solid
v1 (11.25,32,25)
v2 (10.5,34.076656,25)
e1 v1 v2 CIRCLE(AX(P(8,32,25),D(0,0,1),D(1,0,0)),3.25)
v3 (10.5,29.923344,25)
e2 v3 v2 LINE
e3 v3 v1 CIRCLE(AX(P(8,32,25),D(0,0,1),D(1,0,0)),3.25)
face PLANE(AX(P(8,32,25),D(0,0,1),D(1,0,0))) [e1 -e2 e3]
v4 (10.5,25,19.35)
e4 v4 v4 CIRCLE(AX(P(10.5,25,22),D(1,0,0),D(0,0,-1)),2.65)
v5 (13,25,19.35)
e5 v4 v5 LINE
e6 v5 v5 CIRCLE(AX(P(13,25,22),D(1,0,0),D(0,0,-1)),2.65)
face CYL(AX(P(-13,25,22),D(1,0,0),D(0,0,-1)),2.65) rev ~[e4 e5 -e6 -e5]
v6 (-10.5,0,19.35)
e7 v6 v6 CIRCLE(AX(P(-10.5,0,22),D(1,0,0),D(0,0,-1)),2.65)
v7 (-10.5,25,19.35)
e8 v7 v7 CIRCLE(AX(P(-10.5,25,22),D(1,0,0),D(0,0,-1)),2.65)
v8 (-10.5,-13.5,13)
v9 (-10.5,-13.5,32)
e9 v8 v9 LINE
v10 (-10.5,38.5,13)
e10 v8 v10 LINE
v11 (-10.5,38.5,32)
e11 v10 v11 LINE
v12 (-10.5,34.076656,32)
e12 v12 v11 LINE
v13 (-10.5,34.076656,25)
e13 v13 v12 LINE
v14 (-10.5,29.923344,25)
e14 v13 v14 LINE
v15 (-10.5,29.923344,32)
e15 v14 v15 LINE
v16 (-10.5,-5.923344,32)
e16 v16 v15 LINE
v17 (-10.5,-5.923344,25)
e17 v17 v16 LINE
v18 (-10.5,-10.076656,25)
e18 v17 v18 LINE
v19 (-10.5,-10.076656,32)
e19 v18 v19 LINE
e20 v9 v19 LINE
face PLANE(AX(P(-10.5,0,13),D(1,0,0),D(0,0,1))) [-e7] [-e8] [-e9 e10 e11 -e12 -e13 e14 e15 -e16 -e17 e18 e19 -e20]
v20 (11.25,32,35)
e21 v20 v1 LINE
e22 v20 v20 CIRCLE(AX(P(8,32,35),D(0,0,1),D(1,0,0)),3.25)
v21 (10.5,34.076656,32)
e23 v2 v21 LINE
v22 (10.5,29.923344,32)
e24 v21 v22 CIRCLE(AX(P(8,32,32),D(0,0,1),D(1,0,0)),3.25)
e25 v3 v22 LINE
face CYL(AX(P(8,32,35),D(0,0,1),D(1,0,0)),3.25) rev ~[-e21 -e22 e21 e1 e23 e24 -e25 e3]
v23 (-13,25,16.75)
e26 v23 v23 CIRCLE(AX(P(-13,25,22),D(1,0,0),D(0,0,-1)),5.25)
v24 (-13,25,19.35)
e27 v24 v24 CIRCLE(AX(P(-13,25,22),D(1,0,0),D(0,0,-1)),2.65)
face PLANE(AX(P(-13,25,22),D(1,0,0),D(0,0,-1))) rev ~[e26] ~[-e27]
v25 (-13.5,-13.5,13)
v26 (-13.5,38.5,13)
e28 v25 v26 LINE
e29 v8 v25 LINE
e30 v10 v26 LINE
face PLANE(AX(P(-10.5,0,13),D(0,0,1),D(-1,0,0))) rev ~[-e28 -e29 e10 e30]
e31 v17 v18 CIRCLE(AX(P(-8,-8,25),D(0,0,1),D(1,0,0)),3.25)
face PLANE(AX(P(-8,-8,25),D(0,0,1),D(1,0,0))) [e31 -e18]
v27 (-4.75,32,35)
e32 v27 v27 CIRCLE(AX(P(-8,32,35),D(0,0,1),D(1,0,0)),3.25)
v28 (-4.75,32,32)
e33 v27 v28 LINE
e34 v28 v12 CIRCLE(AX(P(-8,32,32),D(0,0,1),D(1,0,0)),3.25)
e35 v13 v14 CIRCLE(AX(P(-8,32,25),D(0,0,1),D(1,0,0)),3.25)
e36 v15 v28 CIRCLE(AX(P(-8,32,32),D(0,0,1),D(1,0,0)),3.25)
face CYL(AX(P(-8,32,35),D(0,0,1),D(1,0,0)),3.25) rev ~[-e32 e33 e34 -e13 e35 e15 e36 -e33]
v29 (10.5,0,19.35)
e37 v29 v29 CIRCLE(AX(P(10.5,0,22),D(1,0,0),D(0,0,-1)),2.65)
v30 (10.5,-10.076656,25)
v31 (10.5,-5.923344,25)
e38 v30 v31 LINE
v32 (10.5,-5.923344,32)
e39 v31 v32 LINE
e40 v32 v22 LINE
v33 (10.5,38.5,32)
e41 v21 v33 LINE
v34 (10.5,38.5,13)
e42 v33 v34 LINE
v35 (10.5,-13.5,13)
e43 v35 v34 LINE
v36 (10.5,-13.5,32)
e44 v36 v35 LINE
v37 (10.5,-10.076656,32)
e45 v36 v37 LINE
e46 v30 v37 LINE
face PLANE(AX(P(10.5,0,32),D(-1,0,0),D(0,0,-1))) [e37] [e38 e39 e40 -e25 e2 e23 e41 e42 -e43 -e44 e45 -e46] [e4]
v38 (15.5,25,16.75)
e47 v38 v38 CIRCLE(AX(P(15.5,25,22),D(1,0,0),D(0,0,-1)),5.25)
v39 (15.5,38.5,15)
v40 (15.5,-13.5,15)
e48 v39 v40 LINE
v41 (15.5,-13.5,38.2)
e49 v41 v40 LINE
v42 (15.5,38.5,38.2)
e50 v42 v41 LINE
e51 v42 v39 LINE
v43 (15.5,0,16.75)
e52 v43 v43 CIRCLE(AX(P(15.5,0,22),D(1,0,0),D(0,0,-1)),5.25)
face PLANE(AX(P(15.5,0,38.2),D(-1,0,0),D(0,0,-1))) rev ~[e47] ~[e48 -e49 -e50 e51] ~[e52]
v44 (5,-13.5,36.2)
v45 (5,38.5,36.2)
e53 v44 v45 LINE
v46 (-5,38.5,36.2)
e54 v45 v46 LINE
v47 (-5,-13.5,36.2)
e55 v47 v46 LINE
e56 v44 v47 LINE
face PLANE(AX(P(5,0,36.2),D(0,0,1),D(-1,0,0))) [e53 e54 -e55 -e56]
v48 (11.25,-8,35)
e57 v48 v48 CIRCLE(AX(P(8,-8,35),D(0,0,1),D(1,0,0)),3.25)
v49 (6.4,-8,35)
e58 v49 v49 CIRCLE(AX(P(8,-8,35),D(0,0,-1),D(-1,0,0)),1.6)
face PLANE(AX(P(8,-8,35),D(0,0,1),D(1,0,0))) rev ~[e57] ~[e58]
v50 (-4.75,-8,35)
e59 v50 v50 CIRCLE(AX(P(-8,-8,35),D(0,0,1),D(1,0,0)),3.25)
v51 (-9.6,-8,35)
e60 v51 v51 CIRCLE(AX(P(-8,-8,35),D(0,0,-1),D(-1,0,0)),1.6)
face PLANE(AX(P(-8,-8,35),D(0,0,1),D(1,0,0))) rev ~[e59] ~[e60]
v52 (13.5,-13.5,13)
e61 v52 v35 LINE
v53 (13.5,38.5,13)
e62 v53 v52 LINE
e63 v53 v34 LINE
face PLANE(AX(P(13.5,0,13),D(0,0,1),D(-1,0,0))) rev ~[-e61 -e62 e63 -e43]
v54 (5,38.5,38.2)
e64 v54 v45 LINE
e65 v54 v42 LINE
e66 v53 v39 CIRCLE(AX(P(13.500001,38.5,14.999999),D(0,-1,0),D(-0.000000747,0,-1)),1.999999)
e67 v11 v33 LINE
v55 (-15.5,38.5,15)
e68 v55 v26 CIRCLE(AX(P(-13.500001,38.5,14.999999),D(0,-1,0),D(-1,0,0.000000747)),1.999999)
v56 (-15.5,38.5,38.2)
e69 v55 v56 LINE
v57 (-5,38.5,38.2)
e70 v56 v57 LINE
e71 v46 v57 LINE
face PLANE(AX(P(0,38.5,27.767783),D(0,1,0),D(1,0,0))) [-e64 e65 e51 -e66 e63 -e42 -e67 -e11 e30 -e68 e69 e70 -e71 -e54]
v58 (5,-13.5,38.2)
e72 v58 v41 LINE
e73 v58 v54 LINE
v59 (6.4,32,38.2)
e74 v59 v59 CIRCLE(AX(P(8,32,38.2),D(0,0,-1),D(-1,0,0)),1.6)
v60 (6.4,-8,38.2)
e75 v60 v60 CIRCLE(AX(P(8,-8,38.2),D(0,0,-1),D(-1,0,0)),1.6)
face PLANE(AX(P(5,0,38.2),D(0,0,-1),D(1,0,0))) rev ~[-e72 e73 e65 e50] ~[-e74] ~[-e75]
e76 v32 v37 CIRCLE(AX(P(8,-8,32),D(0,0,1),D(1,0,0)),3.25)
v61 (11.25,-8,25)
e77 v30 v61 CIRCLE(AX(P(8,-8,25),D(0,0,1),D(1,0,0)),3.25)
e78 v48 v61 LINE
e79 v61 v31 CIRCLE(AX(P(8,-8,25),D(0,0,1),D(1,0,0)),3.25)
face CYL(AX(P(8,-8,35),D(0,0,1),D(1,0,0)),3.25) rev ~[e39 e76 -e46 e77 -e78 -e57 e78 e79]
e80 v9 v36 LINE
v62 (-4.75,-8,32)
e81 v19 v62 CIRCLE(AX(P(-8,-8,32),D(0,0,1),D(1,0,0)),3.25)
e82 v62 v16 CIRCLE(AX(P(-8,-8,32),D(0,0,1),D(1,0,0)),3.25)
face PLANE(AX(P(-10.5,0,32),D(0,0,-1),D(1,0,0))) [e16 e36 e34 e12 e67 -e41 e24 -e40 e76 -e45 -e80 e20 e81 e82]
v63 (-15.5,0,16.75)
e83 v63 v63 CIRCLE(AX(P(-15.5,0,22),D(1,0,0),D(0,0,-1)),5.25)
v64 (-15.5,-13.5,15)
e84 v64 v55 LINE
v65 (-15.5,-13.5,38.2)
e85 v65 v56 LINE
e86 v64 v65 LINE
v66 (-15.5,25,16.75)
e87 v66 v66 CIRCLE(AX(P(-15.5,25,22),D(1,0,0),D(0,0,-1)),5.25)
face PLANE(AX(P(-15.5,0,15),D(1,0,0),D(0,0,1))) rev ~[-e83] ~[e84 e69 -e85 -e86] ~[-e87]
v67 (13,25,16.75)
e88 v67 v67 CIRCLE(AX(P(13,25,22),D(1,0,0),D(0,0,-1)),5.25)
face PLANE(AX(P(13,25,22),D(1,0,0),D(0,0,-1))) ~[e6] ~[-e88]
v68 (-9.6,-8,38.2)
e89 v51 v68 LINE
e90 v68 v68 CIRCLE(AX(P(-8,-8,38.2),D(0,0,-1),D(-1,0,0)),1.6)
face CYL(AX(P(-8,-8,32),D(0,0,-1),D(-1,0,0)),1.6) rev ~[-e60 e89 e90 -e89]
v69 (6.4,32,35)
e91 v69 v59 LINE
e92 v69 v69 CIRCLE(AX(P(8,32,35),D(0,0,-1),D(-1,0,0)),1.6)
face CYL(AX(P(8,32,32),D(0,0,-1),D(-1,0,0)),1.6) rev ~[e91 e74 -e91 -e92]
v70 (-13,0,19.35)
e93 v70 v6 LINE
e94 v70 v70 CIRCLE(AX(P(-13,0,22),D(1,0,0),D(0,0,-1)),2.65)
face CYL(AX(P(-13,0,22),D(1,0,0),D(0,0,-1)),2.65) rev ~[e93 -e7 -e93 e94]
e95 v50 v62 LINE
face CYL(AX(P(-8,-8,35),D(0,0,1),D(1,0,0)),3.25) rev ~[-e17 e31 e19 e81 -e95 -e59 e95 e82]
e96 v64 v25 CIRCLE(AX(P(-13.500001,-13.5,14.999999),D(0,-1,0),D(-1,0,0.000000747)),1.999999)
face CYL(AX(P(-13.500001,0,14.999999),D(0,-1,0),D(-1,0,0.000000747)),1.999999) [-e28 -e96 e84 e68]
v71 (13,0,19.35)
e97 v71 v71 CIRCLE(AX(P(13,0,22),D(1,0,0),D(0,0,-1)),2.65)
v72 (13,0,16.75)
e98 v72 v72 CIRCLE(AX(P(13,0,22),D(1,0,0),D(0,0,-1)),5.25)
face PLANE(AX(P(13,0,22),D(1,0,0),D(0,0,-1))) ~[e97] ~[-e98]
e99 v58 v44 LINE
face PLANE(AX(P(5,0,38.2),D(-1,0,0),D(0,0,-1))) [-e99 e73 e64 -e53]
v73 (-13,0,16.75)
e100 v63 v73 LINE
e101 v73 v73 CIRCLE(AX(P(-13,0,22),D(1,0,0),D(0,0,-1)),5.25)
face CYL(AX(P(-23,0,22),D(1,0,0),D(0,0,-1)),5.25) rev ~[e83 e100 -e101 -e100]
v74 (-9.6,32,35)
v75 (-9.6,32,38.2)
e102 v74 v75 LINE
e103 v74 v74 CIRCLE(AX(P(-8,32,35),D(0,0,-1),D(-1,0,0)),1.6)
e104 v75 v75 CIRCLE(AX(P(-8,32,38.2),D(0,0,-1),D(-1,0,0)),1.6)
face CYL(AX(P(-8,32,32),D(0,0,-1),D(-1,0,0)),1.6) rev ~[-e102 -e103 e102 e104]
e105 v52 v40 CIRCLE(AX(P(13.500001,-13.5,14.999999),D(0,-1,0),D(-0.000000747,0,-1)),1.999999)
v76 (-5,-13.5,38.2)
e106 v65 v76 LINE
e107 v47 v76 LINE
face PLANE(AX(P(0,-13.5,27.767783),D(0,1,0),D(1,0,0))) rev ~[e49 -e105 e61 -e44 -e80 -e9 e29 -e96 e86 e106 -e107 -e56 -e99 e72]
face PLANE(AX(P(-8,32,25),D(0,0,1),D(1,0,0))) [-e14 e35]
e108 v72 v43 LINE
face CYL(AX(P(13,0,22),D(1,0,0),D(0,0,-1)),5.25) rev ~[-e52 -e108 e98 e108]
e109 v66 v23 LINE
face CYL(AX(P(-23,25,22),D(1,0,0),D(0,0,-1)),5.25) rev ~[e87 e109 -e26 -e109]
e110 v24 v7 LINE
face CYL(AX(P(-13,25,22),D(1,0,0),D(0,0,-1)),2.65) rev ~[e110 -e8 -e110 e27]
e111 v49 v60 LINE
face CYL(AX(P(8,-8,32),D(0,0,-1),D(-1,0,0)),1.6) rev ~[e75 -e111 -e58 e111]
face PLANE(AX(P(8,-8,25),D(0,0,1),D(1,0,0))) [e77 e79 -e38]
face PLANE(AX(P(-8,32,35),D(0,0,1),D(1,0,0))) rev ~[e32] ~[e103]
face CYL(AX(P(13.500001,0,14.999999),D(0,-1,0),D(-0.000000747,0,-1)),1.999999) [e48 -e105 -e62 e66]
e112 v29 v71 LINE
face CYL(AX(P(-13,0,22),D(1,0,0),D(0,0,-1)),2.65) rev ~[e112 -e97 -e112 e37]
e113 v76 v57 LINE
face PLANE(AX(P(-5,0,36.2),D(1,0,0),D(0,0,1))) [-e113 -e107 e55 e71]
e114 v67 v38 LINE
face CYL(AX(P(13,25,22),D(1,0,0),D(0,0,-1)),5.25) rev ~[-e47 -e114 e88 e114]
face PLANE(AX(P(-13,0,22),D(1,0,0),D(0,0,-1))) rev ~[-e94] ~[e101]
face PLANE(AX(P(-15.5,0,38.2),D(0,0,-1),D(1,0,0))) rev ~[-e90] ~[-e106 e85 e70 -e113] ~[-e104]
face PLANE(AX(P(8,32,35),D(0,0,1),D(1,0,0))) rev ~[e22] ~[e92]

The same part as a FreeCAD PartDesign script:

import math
import FreeCAD as App
import Part
import Sketcher

doc = App.newDocument("Part")
body = doc.addObject("PartDesign::Body", "Body")

sketch1 = body.newObject("Sketcher::SketchObject", "Sketch")
sketch1.AttachmentSupport = (doc.getObject("XZ_Plane"), [""])
sketch1.MapMode = "FlatFace"
sketch1.addGeometry(Part.LineSegment(App.Vector(-10.5, 19, 0), App.Vector(-13.5, 19, 0)), False)
sketch1.addGeometry(Part.ArcOfCircle(Part.Circle(App.Vector(-13.5, 17, 0), App.Vector(0, 0, 1), 2), math.radians(90), math.radians(180)), False)
sketch1.addGeometry(Part.LineSegment(App.Vector(-15.5, 17, 0), App.Vector(-15.5, -6.2, 0)), False)
sketch1.addGeometry(Part.LineSegment(App.Vector(-15.5, -6.2, 0), App.Vector(-5, -6.2, 0)), False)
sketch1.addGeometry(Part.LineSegment(App.Vector(-5, -6.2, 0), App.Vector(-5, -4.2, 0)), False)
sketch1.addGeometry(Part.LineSegment(App.Vector(-5, -4.2, 0), App.Vector(5, -4.2, 0)), False)
sketch1.addGeometry(Part.LineSegment(App.Vector(5, -4.2, 0), App.Vector(5, -6.2, 0)), False)
sketch1.addGeometry(Part.LineSegment(App.Vector(5, -6.2, 0), App.Vector(15.5, -6.2, 0)), False)
sketch1.addGeometry(Part.LineSegment(App.Vector(15.5, -6.2, 0), App.Vector(15.5, 17, 0)), False)
sketch1.addGeometry(Part.ArcOfCircle(Part.Circle(App.Vector(13.5, 17, 0), App.Vector(0, 0, 1), 2), math.radians(0), math.radians(90)), False)
sketch1.addGeometry(Part.LineSegment(App.Vector(13.5, 19, 0), App.Vector(10.5, 19, 0)), False)
sketch1.addGeometry(Part.LineSegment(App.Vector(10.5, 19, 0), App.Vector(10.5, 0, 0)), False)
sketch1.addGeometry(Part.LineSegment(App.Vector(10.5, 0, 0), App.Vector(-10.5, 0, 0)), False)
sketch1.addGeometry(Part.LineSegment(App.Vector(-10.5, 0, 0), App.Vector(-10.5, 19, 0)), False)
sketch1.addConstraint(Sketcher.Constraint("Tangent", 0, 2, 1, 1))
sketch1.addConstraint(Sketcher.Constraint("Tangent", 1, 2, 2, 1))
sketch1.addConstraint(Sketcher.Constraint("Coincident", 2, 2, 3, 1))
sketch1.addConstraint(Sketcher.Constraint("Coincident", 3, 2, 4, 1))
sketch1.addConstraint(Sketcher.Constraint("Coincident", 4, 2, 5, 1))
sketch1.addConstraint(Sketcher.Constraint("Coincident", 5, 2, 6, 1))
sketch1.addConstraint(Sketcher.Constraint("Coincident", 6, 2, 7, 1))
sketch1.addConstraint(Sketcher.Constraint("Coincident", 7, 2, 8, 1))
sketch1.addConstraint(Sketcher.Constraint("Tangent", 8, 2, 9, 1))
sketch1.addConstraint(Sketcher.Constraint("Tangent", 9, 2, 10, 1))
sketch1.addConstraint(Sketcher.Constraint("Coincident", 10, 2, 11, 1))
sketch1.addConstraint(Sketcher.Constraint("Coincident", 11, 2, 12, 1))
sketch1.addConstraint(Sketcher.Constraint("Coincident", 12, 2, 13, 1))
sketch1.addConstraint(Sketcher.Constraint("Coincident", 13, 2, 0, 1))
sketch1.addConstraint(Sketcher.Constraint("Horizontal", 0))
sketch1.addConstraint(Sketcher.Constraint("Vertical", 2))
sketch1.addConstraint(Sketcher.Constraint("Horizontal", 3))
sketch1.addConstraint(Sketcher.Constraint("Vertical", 4))
sketch1.addConstraint(Sketcher.Constraint("Horizontal", 5))
sketch1.addConstraint(Sketcher.Constraint("Vertical", 6))
sketch1.addConstraint(Sketcher.Constraint("Horizontal", 7))
sketch1.addConstraint(Sketcher.Constraint("Vertical", 8))
sketch1.addConstraint(Sketcher.Constraint("Horizontal", 10))
sketch1.addConstraint(Sketcher.Constraint("Vertical", 11))
sketch1.addConstraint(Sketcher.Constraint("Horizontal", 12))
sketch1.addConstraint(Sketcher.Constraint("Vertical", 13))
sketch1.addConstraint(Sketcher.Constraint("Equal", 1, 9))
sketch1.addConstraint(Sketcher.Constraint("Symmetric", 11, 2, 12, 2, -1, 1))
sketch1.addConstraint(Sketcher.Constraint("Symmetric", 1, 3, 9, 3, -2))
sketch1.addConstraint(Sketcher.Constraint("Symmetric", 3, 2, 6, 2, -2))
sketch1.addConstraint(Sketcher.Constraint("Radius", 1, 1.999999))
sketch1.addConstraint(Sketcher.Constraint("DistanceX", 0, 2, 0, 1, 3.0))
sketch1.addConstraint(Sketcher.Constraint("DistanceX", 5, 1, 5, 2, 10.0))
sketch1.addConstraint(Sketcher.Constraint("DistanceX", 12, 2, 12, 1, 21.0))
sketch1.addConstraint(Sketcher.Constraint("DistanceY", 4, 1, 4, 2, 2.0))
sketch1.addConstraint(Sketcher.Constraint("DistanceY", 11, 2, 11, 1, 19.0))
sketch1.addConstraint(Sketcher.Constraint("DistanceY", 2, 2, 2, 1, 23.2))
pad1 = body.newObject("PartDesign::Pad", "Pad")
pad1.Profile = sketch1
pad1.Type = "TwoLengths"
pad1.Length = 13.5
pad1.Length2 = 38.5

sketch2 = body.newObject("Sketcher::SketchObject", "Sketch001")
sketch2.AttachmentSupport = (doc.getObject("XY_Plane"), [""])
sketch2.MapMode = "FlatFace"
sketch2.addGeometry(Part.Circle(App.Vector(-8, 32, 0), App.Vector(0, 0, 1), 1.6), False)
sketch2.addGeometry(Part.Circle(App.Vector(8, 32, 0), App.Vector(0, 0, 1), 1.6), False)
sketch2.addGeometry(Part.Circle(App.Vector(-8, -8, 0), App.Vector(0, 0, 1), 1.6), False)
sketch2.addGeometry(Part.Circle(App.Vector(8, -8, 0), App.Vector(0, 0, 1), 1.6), False)
sketch2.addConstraint(Sketcher.Constraint("Equal", 0, 1))
sketch2.addConstraint(Sketcher.Constraint("Equal", 1, 2))
sketch2.addConstraint(Sketcher.Constraint("Equal", 2, 3))
sketch2.addConstraint(Sketcher.Constraint("Symmetric", 0, 3, 1, 3, -2))
sketch2.addConstraint(Sketcher.Constraint("Symmetric", 2, 3, 3, 3, -2))
sketch2.addConstraint(Sketcher.Constraint("Vertical", 0, 3, 2, 3))
sketch2.addConstraint(Sketcher.Constraint("Diameter", 0, 3.2))
sketch2.addConstraint(Sketcher.Constraint("DistanceX", 0, 3, -1, 1, 8.0))
sketch2.addConstraint(Sketcher.Constraint("DistanceY", -1, 1, 0, 3, 32.0))
sketch2.addConstraint(Sketcher.Constraint("DistanceY", 2, 3, -1, 1, 8.0))
pocket1 = body.newObject("PartDesign::Pocket", "Pocket")
pocket1.Profile = sketch2
pocket1.Type = "ThroughAll"
pocket1.Midplane = True

sketch3 = body.newObject("Sketcher::SketchObject", "Sketch002")
sketch3.AttachmentSupport = (doc.getObject("XY_Plane"), [""])
sketch3.MapMode = "FlatFace"
sketch3.AttachmentOffset = App.Placement(App.Vector(0, 0, -3), App.Rotation())
sketch3.addGeometry(Part.Circle(App.Vector(8, 32, 0), App.Vector(0, 0, 1), 3.2), False)
sketch3.addGeometry(Part.Circle(App.Vector(-8, 32, 0), App.Vector(0, 0, 1), 3.2), False)
sketch3.addGeometry(Part.Circle(App.Vector(8, -8, 0), App.Vector(0, 0, 1), 3.2), False)
sketch3.addGeometry(Part.Circle(App.Vector(-8, -8, 0), App.Vector(0, 0, 1), 3.2), False)
sketch3.addConstraint(Sketcher.Constraint("Equal", 0, 1))
sketch3.addConstraint(Sketcher.Constraint("Equal", 1, 2))
sketch3.addConstraint(Sketcher.Constraint("Equal", 2, 3))
sketch3.addConstraint(Sketcher.Constraint("Symmetric", 0, 3, 1, 3, -2))
sketch3.addConstraint(Sketcher.Constraint("Symmetric", 2, 3, 3, 3, -2))
sketch3.addConstraint(Sketcher.Constraint("Vertical", 0, 3, 2, 3))
sketch3.addConstraint(Sketcher.Constraint("Diameter", 0, 6.5))
sketch3.addConstraint(Sketcher.Constraint("DistanceX", -1, 1, 0, 3, 8.0))
sketch3.addConstraint(Sketcher.Constraint("DistanceY", -1, 1, 0, 3, 32.0))
sketch3.addConstraint(Sketcher.Constraint("DistanceY", 2, 3, -1, 1, 8.0))
pocket2 = body.newObject("PartDesign::Pocket", "Pocket001")
pocket2.Profile = sketch3
pocket2.Length = 10
pocket2.Reversed = True

sketch4 = body.newObject("Sketcher::SketchObject", "Sketch003")
sketch4.AttachmentSupport = (doc.getObject("XZ_Plane"), [""])
sketch4.MapMode = "FlatFace"
sketch4.addGeometry(Part.LineSegment(App.Vector(-13, 12.7, 0), App.Vector(13, 12.7, 0)), False)
sketch4.addGeometry(Part.LineSegment(App.Vector(13, 12.7, 0), App.Vector(13, 15.2, 0)), False)
sketch4.addGeometry(Part.LineSegment(App.Vector(13, 15.2, 0), App.Vector(23, 15.2, 0)), False)
sketch4.addGeometry(Part.LineSegment(App.Vector(23, 15.2, 0), App.Vector(23, 10, 0)), False)
sketch4.addGeometry(Part.LineSegment(App.Vector(23, 10, 0), App.Vector(-23, 10, 0)), False)
sketch4.addGeometry(Part.LineSegment(App.Vector(-23, 10, 0), App.Vector(-23, 15.2, 0)), False)
sketch4.addGeometry(Part.LineSegment(App.Vector(-23, 15.2, 0), App.Vector(-13, 15.2, 0)), False)
sketch4.addGeometry(Part.LineSegment(App.Vector(-13, 15.2, 0), App.Vector(-13, 12.7, 0)), False)
sketch4.addGeometry(Part.LineSegment(App.Vector(23, 10, 0), App.Vector(-23, 10, 0)), True)
sketch4.addConstraint(Sketcher.Constraint("Coincident", 0, 2, 1, 1))
sketch4.addConstraint(Sketcher.Constraint("Coincident", 1, 2, 2, 1))
sketch4.addConstraint(Sketcher.Constraint("Coincident", 2, 2, 3, 1))
sketch4.addConstraint(Sketcher.Constraint("Coincident", 3, 2, 4, 1))
sketch4.addConstraint(Sketcher.Constraint("Coincident", 4, 2, 5, 1))
sketch4.addConstraint(Sketcher.Constraint("Coincident", 5, 2, 6, 1))
sketch4.addConstraint(Sketcher.Constraint("Coincident", 6, 2, 7, 1))
sketch4.addConstraint(Sketcher.Constraint("Coincident", 7, 2, 0, 1))
sketch4.addConstraint(Sketcher.Constraint("Horizontal", 0))
sketch4.addConstraint(Sketcher.Constraint("Vertical", 1))
sketch4.addConstraint(Sketcher.Constraint("Horizontal", 2))
sketch4.addConstraint(Sketcher.Constraint("Vertical", 3))
sketch4.addConstraint(Sketcher.Constraint("Horizontal", 4))
sketch4.addConstraint(Sketcher.Constraint("Vertical", 5))
sketch4.addConstraint(Sketcher.Constraint("Horizontal", 6))
sketch4.addConstraint(Sketcher.Constraint("Vertical", 7))
sketch4.addConstraint(Sketcher.Constraint("Horizontal", 8))
sketch4.addConstraint(Sketcher.Constraint("Coincident", 8, 1, 3, 2))
sketch4.addConstraint(Sketcher.Constraint("Symmetric", 2, 2, 5, 2, -2))
sketch4.addConstraint(Sketcher.Constraint("Vertical", 5, 2, 8, 2))
sketch4.addConstraint(Sketcher.Constraint("Equal", 2, 6))
sketch4.addConstraint(Sketcher.Constraint("DistanceX", 0, 1, 0, 2, 26.0))
sketch4.addConstraint(Sketcher.Constraint("DistanceX", 2, 1, 2, 2, 10.0))
sketch4.addConstraint(Sketcher.Constraint("DistanceY", 1, 1, 1, 2, 2.6))
sketch4.addConstraint(Sketcher.Constraint("DistanceY", -1, 1, 3, 2, 10.0))
sketch4.addConstraint(Sketcher.Constraint("DistanceY", 3, 2, 3, 1, 5.25))
groove = body.newObject("PartDesign::Groove", "Groove")
groove.Profile = sketch4
groove.ReferenceAxis = (sketch4, ["Axis0"])
groove.Angle = 360
doc.recompute()

linearpattern = body.newObject("PartDesign::LinearPattern", "LinearPattern")
linearpattern.Originals = [groove]
linearpattern.Direction = (doc.getObject("Y_Axis"), [""])
linearpattern.Mode = "offset"
linearpattern.Offset = 25
linearpattern.Occurrences = 2
body.Tip = linearpattern
body2 = doc.addObject("PartDesign::Body", "Body001")
doc.recompute()

body.Placement = App.Placement(App.Vector(0, 0, 32), App.Rotation(App.Vector(0, 1, 0), 180))
boolean = body2.newObject("PartDesign::Boolean", "Boolean")
boolean.Type = "Fuse"
boolean.addObjects([body])

doc.recompute()
